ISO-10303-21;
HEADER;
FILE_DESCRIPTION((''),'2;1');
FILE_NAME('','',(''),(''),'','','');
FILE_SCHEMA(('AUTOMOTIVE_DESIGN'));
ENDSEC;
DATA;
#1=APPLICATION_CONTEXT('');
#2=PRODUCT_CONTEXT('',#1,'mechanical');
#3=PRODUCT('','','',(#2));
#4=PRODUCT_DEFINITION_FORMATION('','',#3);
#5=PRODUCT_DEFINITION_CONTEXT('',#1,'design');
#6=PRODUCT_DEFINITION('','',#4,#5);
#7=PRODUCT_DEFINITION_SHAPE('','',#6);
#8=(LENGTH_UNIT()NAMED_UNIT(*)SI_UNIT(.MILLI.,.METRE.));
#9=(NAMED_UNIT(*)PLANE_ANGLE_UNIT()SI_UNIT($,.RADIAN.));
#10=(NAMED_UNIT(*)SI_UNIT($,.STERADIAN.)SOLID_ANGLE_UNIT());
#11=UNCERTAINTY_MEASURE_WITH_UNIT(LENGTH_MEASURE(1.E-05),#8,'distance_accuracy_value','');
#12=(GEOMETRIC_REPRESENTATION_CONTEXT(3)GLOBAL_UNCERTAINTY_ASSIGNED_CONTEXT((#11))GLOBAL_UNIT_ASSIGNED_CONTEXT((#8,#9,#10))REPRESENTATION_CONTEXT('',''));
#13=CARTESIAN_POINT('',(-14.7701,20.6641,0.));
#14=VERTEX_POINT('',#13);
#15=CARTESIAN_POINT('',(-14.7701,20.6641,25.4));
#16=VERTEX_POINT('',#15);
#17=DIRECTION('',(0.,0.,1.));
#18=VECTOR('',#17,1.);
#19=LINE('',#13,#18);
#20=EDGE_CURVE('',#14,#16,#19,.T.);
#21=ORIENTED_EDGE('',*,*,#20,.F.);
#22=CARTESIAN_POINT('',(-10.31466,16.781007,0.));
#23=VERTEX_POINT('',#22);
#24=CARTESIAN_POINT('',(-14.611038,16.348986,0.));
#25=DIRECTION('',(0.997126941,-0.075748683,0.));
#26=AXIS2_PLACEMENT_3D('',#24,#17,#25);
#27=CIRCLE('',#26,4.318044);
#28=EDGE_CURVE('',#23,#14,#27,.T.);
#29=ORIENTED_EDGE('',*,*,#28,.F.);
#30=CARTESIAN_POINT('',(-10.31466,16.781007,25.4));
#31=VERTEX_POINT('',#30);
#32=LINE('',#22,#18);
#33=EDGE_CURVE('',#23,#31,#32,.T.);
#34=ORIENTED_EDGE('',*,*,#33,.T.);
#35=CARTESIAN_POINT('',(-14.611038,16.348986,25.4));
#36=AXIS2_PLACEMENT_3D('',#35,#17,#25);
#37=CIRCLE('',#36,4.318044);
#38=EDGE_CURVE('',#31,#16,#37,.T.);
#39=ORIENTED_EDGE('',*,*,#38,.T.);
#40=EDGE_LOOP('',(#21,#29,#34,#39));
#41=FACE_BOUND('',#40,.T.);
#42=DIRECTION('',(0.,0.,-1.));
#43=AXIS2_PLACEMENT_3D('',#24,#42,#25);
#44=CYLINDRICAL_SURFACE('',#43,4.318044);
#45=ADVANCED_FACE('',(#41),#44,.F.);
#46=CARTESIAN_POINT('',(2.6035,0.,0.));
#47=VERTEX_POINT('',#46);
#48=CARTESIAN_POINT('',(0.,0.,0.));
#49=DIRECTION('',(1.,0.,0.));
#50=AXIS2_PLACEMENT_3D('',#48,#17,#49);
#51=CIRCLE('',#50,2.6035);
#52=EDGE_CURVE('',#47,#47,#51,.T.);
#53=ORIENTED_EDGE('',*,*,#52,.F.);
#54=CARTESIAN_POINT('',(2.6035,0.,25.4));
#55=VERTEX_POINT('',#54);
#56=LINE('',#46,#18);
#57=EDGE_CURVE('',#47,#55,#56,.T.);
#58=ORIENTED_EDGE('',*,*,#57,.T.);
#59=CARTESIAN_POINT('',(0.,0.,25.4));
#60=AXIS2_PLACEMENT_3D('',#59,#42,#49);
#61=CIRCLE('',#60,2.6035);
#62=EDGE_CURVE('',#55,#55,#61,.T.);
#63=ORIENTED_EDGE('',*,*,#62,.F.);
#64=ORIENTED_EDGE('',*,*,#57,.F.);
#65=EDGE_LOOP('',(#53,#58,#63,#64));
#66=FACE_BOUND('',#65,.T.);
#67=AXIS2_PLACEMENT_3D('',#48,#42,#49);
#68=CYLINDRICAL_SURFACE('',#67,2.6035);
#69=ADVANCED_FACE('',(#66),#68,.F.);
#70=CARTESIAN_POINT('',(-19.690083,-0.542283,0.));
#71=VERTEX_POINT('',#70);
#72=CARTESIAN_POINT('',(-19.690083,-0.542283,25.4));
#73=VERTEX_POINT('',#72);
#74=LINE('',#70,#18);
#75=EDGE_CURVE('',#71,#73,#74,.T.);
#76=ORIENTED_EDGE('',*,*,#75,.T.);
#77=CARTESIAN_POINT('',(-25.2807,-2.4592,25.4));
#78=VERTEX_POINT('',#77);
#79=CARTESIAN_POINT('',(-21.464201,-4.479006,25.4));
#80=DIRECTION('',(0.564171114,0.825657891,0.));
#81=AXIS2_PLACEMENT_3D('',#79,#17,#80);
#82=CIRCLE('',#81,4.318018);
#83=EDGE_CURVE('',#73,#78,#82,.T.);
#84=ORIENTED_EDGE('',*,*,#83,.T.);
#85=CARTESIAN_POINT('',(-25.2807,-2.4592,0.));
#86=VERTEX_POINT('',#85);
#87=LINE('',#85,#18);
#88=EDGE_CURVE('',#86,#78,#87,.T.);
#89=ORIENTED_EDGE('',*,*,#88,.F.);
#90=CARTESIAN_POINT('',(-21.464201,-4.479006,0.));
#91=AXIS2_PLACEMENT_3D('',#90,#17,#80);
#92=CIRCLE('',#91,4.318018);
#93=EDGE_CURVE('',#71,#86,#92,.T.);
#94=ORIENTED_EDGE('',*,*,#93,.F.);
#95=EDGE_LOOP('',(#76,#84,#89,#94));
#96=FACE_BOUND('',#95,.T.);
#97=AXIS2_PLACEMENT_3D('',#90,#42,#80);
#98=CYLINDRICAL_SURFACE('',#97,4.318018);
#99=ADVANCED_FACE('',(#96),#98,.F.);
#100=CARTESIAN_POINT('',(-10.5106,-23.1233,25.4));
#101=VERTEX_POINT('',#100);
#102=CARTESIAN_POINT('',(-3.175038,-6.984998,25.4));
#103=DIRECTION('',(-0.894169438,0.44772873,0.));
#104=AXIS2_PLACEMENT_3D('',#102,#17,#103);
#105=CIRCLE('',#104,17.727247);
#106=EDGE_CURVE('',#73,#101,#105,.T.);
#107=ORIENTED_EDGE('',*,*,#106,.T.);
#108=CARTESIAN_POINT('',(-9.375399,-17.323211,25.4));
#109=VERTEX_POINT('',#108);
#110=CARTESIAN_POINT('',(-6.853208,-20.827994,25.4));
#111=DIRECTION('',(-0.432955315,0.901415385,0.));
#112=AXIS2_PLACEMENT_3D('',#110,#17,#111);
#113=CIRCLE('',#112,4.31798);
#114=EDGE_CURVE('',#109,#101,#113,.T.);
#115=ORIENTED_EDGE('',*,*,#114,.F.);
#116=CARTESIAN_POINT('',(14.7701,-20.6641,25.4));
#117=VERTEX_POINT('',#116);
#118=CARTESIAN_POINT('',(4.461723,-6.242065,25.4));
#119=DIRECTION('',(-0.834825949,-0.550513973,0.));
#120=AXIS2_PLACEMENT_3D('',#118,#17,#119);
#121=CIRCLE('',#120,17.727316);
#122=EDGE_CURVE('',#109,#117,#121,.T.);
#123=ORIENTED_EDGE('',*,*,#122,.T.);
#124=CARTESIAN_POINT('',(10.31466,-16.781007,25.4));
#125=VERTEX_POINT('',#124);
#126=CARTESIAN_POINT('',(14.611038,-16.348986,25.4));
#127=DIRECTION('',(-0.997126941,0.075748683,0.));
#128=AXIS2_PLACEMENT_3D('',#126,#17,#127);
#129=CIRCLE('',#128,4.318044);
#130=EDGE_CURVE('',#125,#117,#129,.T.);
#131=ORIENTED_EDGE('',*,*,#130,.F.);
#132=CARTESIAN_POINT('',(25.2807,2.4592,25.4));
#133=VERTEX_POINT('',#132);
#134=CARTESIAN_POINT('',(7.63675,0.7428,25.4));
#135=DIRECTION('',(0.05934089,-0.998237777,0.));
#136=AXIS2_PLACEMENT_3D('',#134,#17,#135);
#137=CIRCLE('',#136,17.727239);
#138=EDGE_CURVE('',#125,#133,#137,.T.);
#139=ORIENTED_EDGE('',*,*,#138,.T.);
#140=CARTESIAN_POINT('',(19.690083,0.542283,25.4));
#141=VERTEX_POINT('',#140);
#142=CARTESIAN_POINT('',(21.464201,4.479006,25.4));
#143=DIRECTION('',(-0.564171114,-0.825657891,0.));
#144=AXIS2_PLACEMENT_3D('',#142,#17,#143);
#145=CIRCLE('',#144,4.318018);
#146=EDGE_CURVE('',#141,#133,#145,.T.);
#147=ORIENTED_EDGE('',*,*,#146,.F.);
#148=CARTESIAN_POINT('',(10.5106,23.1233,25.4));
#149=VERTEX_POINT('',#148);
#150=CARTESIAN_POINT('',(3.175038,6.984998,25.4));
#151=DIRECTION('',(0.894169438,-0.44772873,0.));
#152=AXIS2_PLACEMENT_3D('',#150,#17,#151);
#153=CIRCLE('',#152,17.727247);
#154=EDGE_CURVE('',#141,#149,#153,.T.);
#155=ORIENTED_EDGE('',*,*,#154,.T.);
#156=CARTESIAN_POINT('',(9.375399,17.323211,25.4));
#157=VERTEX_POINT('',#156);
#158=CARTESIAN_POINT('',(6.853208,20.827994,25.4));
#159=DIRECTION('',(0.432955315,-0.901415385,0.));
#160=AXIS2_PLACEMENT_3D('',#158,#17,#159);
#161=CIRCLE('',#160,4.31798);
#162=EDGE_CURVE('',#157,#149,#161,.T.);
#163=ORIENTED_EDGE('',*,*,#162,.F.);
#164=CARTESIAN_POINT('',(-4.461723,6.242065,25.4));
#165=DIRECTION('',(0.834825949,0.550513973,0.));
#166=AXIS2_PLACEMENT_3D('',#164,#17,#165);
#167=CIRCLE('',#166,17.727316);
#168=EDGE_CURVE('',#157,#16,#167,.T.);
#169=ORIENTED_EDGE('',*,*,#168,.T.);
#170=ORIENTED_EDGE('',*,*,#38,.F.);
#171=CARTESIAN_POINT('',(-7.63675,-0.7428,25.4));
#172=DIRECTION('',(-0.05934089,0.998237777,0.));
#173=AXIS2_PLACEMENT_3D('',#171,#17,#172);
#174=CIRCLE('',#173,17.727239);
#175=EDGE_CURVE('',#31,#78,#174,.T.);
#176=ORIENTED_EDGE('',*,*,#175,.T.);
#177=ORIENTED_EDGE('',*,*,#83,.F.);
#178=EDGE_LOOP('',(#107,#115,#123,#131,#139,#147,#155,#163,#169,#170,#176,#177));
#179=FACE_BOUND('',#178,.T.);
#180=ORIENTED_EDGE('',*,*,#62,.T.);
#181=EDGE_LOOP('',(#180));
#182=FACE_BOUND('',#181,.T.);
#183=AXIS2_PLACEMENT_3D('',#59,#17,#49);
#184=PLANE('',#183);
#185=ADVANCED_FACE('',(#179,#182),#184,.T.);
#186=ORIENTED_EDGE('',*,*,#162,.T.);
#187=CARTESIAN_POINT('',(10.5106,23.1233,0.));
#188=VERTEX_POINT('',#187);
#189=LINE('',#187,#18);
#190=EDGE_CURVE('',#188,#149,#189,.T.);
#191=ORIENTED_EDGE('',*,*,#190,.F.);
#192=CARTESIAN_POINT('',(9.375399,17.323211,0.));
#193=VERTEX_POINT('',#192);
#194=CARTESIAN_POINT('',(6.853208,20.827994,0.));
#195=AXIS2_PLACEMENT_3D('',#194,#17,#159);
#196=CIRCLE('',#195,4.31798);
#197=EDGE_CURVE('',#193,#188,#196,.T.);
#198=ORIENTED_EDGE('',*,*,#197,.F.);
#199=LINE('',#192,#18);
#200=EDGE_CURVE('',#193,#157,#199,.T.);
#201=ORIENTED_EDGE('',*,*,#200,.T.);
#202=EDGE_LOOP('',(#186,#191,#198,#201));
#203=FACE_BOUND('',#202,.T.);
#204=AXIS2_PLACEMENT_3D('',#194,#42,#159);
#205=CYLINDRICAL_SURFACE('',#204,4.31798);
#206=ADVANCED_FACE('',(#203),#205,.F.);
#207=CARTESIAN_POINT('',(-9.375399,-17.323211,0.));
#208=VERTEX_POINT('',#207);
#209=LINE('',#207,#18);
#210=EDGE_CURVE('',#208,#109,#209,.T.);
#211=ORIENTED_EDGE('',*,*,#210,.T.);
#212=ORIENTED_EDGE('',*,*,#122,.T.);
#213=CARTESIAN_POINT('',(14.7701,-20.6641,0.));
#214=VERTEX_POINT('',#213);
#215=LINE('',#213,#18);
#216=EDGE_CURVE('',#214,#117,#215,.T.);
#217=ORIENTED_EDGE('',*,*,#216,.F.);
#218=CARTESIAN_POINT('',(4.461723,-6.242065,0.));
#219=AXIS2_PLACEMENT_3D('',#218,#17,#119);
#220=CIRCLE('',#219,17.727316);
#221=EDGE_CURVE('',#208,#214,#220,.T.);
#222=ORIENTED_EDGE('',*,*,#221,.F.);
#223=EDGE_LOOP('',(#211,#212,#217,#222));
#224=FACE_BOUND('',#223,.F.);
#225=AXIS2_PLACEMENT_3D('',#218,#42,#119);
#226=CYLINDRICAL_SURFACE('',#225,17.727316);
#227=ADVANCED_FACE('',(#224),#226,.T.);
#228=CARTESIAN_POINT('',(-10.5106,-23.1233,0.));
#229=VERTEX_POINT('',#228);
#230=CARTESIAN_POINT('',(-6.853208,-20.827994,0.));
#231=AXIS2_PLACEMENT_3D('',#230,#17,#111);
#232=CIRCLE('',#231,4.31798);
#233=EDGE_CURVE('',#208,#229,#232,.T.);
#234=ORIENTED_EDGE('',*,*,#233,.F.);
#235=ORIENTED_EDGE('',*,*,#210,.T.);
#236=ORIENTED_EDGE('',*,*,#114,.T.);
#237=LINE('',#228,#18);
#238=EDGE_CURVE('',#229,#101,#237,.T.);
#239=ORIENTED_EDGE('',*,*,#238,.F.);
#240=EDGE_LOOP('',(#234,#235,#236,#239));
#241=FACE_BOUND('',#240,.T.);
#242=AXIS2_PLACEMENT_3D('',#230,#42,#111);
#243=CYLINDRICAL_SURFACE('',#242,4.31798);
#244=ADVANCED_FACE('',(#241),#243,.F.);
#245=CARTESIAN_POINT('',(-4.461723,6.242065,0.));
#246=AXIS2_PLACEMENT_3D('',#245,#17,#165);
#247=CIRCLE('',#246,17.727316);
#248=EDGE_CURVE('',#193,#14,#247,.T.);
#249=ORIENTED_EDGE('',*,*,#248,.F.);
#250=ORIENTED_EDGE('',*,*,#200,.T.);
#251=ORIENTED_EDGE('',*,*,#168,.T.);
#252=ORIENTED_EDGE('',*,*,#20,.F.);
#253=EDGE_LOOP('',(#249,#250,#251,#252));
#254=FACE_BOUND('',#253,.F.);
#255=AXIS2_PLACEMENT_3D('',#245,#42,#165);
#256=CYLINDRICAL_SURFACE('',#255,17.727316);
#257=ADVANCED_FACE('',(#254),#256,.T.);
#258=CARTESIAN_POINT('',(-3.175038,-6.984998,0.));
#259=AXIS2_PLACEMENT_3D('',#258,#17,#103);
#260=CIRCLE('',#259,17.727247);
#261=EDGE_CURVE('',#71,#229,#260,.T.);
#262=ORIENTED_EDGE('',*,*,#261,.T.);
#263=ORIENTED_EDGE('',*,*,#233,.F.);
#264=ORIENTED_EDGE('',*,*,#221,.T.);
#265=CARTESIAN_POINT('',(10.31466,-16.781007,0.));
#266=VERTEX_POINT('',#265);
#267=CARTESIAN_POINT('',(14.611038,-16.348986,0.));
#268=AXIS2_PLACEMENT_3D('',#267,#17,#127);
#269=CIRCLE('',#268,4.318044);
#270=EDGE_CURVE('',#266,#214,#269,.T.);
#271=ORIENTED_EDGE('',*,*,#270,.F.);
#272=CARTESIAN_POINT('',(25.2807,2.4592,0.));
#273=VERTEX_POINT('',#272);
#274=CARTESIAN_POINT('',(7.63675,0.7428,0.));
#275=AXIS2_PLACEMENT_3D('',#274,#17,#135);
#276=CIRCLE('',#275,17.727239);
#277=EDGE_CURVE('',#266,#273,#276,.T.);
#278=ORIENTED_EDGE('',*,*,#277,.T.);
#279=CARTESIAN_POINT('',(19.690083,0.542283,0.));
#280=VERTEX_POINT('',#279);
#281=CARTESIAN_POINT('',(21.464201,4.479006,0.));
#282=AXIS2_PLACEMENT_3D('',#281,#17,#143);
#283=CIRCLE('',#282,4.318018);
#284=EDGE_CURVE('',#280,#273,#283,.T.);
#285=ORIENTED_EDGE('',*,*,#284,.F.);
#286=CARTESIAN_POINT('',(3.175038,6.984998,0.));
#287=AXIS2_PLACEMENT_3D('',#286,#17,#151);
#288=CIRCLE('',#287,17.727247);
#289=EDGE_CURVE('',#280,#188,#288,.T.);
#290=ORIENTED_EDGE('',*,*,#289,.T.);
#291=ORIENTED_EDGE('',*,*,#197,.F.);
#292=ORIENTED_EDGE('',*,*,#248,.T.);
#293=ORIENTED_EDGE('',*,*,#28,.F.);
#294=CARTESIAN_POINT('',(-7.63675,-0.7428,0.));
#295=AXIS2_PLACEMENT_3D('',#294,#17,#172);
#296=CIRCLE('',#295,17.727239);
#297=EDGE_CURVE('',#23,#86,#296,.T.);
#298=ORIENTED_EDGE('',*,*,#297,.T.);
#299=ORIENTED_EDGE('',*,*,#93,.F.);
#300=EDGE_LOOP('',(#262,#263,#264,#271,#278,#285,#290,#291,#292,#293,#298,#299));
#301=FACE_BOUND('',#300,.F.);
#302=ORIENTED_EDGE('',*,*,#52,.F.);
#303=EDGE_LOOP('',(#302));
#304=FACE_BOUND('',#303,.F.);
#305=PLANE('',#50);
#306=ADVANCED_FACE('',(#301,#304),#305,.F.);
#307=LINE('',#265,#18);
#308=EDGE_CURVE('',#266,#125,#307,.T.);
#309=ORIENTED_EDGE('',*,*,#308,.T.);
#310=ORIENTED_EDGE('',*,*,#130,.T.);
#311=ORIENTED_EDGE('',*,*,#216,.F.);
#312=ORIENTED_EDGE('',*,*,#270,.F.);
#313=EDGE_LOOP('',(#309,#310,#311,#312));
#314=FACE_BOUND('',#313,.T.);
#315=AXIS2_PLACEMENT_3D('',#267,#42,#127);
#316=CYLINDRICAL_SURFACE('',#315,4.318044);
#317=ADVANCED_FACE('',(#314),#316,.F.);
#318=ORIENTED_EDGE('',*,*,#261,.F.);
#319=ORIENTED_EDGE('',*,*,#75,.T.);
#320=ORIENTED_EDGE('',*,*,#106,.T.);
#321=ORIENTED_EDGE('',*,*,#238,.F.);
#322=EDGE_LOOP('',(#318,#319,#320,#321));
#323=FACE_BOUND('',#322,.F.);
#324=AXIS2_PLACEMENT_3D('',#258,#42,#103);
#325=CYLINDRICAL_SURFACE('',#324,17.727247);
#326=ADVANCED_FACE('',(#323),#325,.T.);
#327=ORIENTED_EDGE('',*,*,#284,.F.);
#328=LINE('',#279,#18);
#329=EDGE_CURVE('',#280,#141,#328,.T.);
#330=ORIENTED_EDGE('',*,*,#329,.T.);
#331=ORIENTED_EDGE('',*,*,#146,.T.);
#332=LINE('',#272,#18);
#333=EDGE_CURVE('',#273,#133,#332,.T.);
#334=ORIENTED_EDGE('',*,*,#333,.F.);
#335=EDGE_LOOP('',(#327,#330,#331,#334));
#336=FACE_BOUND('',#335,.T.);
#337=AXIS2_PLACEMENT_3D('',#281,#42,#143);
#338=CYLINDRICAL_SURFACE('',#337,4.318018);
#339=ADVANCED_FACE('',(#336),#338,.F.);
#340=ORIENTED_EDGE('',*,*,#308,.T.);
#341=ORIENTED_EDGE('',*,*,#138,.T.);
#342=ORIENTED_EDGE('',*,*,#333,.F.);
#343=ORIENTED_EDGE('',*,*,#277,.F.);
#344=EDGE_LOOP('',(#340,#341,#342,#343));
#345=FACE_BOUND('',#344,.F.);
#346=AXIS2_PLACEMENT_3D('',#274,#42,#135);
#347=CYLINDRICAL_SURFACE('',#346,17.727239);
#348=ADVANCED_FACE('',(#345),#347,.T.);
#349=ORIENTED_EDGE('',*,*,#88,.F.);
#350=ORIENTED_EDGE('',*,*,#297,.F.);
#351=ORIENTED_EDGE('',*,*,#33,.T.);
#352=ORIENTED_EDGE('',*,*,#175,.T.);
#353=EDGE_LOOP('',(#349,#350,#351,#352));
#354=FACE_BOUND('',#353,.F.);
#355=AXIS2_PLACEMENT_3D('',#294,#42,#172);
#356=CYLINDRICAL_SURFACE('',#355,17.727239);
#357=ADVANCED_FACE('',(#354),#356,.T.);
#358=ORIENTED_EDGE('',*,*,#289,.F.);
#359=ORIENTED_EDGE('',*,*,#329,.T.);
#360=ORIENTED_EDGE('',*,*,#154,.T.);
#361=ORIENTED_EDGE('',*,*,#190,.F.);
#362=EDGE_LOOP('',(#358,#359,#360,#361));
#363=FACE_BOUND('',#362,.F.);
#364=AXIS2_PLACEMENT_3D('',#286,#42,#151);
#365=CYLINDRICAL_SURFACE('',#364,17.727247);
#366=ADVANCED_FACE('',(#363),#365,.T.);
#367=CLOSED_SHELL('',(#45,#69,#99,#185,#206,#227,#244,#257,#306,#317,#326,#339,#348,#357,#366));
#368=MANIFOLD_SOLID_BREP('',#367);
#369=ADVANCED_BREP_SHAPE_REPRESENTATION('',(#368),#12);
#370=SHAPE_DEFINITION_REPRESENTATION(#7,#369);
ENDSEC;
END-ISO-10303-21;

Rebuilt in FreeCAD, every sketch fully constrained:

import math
import FreeCAD as App
import Part
import Sketcher
from FreeCAD import Vector
Q = App.Units.Quantity

doc = App.newDocument("Part")
body = doc.addObject("PartDesign::Body", "Body")

# Sketch on XY plane
sketch1 = body.newObject("Sketcher::SketchObject", "Sketch")
sketch1.AttachmentSupport = (doc.getObject("XY_Plane"), [""])
sketch1.MapMode = "FlatFace"
sketch1.addGeometry(Part.ArcOfCircle(Part.Circle(Vector(21.4642, 4.479, 0), Vector(0, 0, 1), 4.318013), math.radians(-114.259144), math.radians(-27.889062)), False)
sketch1.addGeometry(Part.ArcOfCircle(Part.Circle(Vector(3.175, 6.985, 0), Vector(0, 0, 1), 17.727282), math.radians(-21.311308), math.radians(65.556018)), False)
sketch1.addGeometry(Part.ArcOfCircle(Part.Circle(Vector(6.8532, 20.828, 0), Vector(0, 0, 1), 4.317989), math.radians(-54.259572), math.radians(32.111435)), False)
sketch1.addGeometry(Part.ArcOfCircle(Part.Circle(Vector(-4.4617, 6.2421, 0), Vector(0, 0, 1), 17.727277), math.radians(38.68866), math.radians(125.556013)), False)
sketch1.addGeometry(Part.ArcOfCircle(Part.Circle(Vector(-14.611, 16.349, 0), Vector(0, 0, 1), 4.318007), math.radians(5.741924), math.radians(92.111569)), False)
sketch1.addGeometry(Part.ArcOfCircle(Part.Circle(Vector(-7.6367, -0.7429, 0), Vector(0, 0, 1), 17.727342), math.radians(98.68858), math.radians(185.555902)), False)
sketch1.addGeometry(Part.ArcOfCircle(Part.Circle(Vector(-21.4642, -4.479, 0), Vector(0, 0, 1), 4.318013), math.radians(65.740856), math.radians(152.110938)), False)
sketch1.addGeometry(Part.ArcOfCircle(Part.Circle(Vector(-3.175, -6.985, 0), Vector(0, 0, 1), 17.727282), math.radians(158.688692), math.radians(245.556018)), False)
sketch1.addGeometry(Part.ArcOfCircle(Part.Circle(Vector(-6.8532, -20.828, 0), Vector(0, 0, 1), 4.317989), math.radians(125.740428), math.radians(212.111435)), False)
sketch1.addGeometry(Part.ArcOfCircle(Part.Circle(Vector(4.4617, -6.2421, 0), Vector(0, 0, 1), 17.727277), math.radians(-141.31134), math.radians(-54.443987)), False)
sketch1.addGeometry(Part.ArcOfCircle(Part.Circle(Vector(14.611, -16.349, 0), Vector(0, 0, 1), 4.318007), math.radians(-174.258076), math.radians(-87.888431)), False)
sketch1.addGeometry(Part.ArcOfCircle(Part.Circle(Vector(7.6367, 0.7429, 0), Vector(0, 0, 1), 17.727342), math.radians(-81.31142), math.radians(5.555902)), False)
sketch1.addConstraint(Sketcher.Constraint("Coincident", 0, 1, 1, 1))
sketch1.addConstraint(Sketcher.Constraint("Coincident", 1, 2, 2, 2))
sketch1.addConstraint(Sketcher.Constraint("Coincident", 2, 1, 3, 1))
sketch1.addConstraint(Sketcher.Constraint("Coincident", 3, 2, 4, 2))
sketch1.addConstraint(Sketcher.Constraint("Coincident", 4, 1, 5, 1))
sketch1.addConstraint(Sketcher.Constraint("Coincident", 5, 2, 6, 2))
sketch1.addConstraint(Sketcher.Constraint("Coincident", 6, 1, 7, 1))
sketch1.addConstraint(Sketcher.Constraint("Coincident", 7, 2, 8, 2))
sketch1.addConstraint(Sketcher.Constraint("Coincident", 8, 1, 9, 1))
sketch1.addConstraint(Sketcher.Constraint("Coincident", 9, 2, 10, 2))
sketch1.addConstraint(Sketcher.Constraint("Coincident", 10, 1, 11, 1))
sketch1.addConstraint(Sketcher.Constraint("Coincident", 11, 2, 0, 2))
sketch1.addConstraint(Sketcher.Constraint("Equal", 0, 2))
sketch1.addConstraint(Sketcher.Constraint("Equal", 1, 3))
sketch1.addConstraint(Sketcher.Constraint("Equal", 2, 4))
sketch1.addConstraint(Sketcher.Constraint("Equal", 3, 5))
sketch1.addConstraint(Sketcher.Constraint("Equal", 4, 6))
sketch1.addConstraint(Sketcher.Constraint("Equal", 5, 7))
sketch1.addConstraint(Sketcher.Constraint("Equal", 6, 8))
sketch1.addConstraint(Sketcher.Constraint("Equal", 7, 9))
sketch1.addConstraint(Sketcher.Constraint("Equal", 8, 10))
sketch1.addConstraint(Sketcher.Constraint("Equal", 9, 11))
sketch1.addConstraint(Sketcher.Constraint("Symmetric", 0, 3, 6, 3, -1, 1))
sketch1.addConstraint(Sketcher.Constraint("Symmetric", 1, 3, 7, 3, -1, 1))
sketch1.addConstraint(Sketcher.Constraint("Symmetric", 2, 3, 8, 3, -1, 1))
sketch1.addConstraint(Sketcher.Constraint("Symmetric", 3, 3, 9, 3, -1, 1))
sketch1.addConstraint(Sketcher.Constraint("Symmetric", 4, 3, 10, 3, -1, 1))
sketch1.addConstraint(Sketcher.Constraint("Symmetric", 5, 3, 11, 3, -1, 1))
sketch1.addConstraint(Sketcher.Constraint("Radius", 0, Q("0.17 in")))
sketch1.addConstraint(Sketcher.Constraint("DistanceY", -1, 1, 2, 3, Q("0.82 in")))
sketch1.addConstraint(Sketcher.Constraint("DistanceY", 6, 3, 4, 3, Q("0.82 in")))
sketch1.addConstraint(Sketcher.Constraint("DistanceX", -1, 1, 1, 3, Q("0.125 in")))
sketch1.addConstraint(Sketcher.Constraint("DistanceY", -1, 1, 1, 3, Q("0.275 in")))
sketch1.addConstraint(Sketcher.Constraint("DistanceX", 5, 3, 3, 3, Q("0.125 in")))
sketch1.addConstraint(Sketcher.Constraint("DistanceY", 5, 3, 3, 3, Q("0.275 in")))
sketch1.addConstraint(Sketcher.Constraint("Radius", 1, Q("17.7273 mm")))
sketch1.addConstraint(Sketcher.Constraint("DistanceY", 0, 1, 0, 3, Q("0.155 in")))
sketch1.addConstraint(Sketcher.Constraint("DistanceX", 2, 3, 1, 2, Q("0.144 in")))
sketch1.addConstraint(Sketcher.Constraint("DistanceY", 4, 3, 4, 1, Q("0.017 in")))
sketch1.addConstraint(Sketcher.Constraint("DistanceX", -1, 1, 0, 1, Q("0.7752 in")))
sketch1.addConstraint(Sketcher.Constraint("DistanceX", -1, 1, 2, 1, Q("0.3691 in")))
sketch1.addConstraint(Sketcher.Constraint("DistanceX", 3, 2, -1, 1, Q("0.5815 in")))
pad1 = body.newObject("PartDesign::Pad", "Pad")
pad1.Profile = sketch1
pad1.Length = Q("1 in")

# Sketch on XY plane
sketch2 = body.newObject("Sketcher::SketchObject", "Sketch001")
sketch2.AttachmentSupport = (doc.getObject("XY_Plane"), [""])
sketch2.MapMode = "FlatFace"
sketch2.addGeometry(Part.Circle(Vector(0, 0, 0), Vector(0, 0, 1), 2.6035), False)
sketch2.addConstraint(Sketcher.Constraint("Coincident", 0, 3, -1, 1))
sketch2.addConstraint(Sketcher.Constraint("Diameter", 0, Q("0.205 in")))
pocket1 = body.newObject("PartDesign::Pocket", "Pocket")
pocket1.Profile = sketch2
pocket1.Type = "ThroughAll"
pocket1.Reversed = True

doc.recompute()
